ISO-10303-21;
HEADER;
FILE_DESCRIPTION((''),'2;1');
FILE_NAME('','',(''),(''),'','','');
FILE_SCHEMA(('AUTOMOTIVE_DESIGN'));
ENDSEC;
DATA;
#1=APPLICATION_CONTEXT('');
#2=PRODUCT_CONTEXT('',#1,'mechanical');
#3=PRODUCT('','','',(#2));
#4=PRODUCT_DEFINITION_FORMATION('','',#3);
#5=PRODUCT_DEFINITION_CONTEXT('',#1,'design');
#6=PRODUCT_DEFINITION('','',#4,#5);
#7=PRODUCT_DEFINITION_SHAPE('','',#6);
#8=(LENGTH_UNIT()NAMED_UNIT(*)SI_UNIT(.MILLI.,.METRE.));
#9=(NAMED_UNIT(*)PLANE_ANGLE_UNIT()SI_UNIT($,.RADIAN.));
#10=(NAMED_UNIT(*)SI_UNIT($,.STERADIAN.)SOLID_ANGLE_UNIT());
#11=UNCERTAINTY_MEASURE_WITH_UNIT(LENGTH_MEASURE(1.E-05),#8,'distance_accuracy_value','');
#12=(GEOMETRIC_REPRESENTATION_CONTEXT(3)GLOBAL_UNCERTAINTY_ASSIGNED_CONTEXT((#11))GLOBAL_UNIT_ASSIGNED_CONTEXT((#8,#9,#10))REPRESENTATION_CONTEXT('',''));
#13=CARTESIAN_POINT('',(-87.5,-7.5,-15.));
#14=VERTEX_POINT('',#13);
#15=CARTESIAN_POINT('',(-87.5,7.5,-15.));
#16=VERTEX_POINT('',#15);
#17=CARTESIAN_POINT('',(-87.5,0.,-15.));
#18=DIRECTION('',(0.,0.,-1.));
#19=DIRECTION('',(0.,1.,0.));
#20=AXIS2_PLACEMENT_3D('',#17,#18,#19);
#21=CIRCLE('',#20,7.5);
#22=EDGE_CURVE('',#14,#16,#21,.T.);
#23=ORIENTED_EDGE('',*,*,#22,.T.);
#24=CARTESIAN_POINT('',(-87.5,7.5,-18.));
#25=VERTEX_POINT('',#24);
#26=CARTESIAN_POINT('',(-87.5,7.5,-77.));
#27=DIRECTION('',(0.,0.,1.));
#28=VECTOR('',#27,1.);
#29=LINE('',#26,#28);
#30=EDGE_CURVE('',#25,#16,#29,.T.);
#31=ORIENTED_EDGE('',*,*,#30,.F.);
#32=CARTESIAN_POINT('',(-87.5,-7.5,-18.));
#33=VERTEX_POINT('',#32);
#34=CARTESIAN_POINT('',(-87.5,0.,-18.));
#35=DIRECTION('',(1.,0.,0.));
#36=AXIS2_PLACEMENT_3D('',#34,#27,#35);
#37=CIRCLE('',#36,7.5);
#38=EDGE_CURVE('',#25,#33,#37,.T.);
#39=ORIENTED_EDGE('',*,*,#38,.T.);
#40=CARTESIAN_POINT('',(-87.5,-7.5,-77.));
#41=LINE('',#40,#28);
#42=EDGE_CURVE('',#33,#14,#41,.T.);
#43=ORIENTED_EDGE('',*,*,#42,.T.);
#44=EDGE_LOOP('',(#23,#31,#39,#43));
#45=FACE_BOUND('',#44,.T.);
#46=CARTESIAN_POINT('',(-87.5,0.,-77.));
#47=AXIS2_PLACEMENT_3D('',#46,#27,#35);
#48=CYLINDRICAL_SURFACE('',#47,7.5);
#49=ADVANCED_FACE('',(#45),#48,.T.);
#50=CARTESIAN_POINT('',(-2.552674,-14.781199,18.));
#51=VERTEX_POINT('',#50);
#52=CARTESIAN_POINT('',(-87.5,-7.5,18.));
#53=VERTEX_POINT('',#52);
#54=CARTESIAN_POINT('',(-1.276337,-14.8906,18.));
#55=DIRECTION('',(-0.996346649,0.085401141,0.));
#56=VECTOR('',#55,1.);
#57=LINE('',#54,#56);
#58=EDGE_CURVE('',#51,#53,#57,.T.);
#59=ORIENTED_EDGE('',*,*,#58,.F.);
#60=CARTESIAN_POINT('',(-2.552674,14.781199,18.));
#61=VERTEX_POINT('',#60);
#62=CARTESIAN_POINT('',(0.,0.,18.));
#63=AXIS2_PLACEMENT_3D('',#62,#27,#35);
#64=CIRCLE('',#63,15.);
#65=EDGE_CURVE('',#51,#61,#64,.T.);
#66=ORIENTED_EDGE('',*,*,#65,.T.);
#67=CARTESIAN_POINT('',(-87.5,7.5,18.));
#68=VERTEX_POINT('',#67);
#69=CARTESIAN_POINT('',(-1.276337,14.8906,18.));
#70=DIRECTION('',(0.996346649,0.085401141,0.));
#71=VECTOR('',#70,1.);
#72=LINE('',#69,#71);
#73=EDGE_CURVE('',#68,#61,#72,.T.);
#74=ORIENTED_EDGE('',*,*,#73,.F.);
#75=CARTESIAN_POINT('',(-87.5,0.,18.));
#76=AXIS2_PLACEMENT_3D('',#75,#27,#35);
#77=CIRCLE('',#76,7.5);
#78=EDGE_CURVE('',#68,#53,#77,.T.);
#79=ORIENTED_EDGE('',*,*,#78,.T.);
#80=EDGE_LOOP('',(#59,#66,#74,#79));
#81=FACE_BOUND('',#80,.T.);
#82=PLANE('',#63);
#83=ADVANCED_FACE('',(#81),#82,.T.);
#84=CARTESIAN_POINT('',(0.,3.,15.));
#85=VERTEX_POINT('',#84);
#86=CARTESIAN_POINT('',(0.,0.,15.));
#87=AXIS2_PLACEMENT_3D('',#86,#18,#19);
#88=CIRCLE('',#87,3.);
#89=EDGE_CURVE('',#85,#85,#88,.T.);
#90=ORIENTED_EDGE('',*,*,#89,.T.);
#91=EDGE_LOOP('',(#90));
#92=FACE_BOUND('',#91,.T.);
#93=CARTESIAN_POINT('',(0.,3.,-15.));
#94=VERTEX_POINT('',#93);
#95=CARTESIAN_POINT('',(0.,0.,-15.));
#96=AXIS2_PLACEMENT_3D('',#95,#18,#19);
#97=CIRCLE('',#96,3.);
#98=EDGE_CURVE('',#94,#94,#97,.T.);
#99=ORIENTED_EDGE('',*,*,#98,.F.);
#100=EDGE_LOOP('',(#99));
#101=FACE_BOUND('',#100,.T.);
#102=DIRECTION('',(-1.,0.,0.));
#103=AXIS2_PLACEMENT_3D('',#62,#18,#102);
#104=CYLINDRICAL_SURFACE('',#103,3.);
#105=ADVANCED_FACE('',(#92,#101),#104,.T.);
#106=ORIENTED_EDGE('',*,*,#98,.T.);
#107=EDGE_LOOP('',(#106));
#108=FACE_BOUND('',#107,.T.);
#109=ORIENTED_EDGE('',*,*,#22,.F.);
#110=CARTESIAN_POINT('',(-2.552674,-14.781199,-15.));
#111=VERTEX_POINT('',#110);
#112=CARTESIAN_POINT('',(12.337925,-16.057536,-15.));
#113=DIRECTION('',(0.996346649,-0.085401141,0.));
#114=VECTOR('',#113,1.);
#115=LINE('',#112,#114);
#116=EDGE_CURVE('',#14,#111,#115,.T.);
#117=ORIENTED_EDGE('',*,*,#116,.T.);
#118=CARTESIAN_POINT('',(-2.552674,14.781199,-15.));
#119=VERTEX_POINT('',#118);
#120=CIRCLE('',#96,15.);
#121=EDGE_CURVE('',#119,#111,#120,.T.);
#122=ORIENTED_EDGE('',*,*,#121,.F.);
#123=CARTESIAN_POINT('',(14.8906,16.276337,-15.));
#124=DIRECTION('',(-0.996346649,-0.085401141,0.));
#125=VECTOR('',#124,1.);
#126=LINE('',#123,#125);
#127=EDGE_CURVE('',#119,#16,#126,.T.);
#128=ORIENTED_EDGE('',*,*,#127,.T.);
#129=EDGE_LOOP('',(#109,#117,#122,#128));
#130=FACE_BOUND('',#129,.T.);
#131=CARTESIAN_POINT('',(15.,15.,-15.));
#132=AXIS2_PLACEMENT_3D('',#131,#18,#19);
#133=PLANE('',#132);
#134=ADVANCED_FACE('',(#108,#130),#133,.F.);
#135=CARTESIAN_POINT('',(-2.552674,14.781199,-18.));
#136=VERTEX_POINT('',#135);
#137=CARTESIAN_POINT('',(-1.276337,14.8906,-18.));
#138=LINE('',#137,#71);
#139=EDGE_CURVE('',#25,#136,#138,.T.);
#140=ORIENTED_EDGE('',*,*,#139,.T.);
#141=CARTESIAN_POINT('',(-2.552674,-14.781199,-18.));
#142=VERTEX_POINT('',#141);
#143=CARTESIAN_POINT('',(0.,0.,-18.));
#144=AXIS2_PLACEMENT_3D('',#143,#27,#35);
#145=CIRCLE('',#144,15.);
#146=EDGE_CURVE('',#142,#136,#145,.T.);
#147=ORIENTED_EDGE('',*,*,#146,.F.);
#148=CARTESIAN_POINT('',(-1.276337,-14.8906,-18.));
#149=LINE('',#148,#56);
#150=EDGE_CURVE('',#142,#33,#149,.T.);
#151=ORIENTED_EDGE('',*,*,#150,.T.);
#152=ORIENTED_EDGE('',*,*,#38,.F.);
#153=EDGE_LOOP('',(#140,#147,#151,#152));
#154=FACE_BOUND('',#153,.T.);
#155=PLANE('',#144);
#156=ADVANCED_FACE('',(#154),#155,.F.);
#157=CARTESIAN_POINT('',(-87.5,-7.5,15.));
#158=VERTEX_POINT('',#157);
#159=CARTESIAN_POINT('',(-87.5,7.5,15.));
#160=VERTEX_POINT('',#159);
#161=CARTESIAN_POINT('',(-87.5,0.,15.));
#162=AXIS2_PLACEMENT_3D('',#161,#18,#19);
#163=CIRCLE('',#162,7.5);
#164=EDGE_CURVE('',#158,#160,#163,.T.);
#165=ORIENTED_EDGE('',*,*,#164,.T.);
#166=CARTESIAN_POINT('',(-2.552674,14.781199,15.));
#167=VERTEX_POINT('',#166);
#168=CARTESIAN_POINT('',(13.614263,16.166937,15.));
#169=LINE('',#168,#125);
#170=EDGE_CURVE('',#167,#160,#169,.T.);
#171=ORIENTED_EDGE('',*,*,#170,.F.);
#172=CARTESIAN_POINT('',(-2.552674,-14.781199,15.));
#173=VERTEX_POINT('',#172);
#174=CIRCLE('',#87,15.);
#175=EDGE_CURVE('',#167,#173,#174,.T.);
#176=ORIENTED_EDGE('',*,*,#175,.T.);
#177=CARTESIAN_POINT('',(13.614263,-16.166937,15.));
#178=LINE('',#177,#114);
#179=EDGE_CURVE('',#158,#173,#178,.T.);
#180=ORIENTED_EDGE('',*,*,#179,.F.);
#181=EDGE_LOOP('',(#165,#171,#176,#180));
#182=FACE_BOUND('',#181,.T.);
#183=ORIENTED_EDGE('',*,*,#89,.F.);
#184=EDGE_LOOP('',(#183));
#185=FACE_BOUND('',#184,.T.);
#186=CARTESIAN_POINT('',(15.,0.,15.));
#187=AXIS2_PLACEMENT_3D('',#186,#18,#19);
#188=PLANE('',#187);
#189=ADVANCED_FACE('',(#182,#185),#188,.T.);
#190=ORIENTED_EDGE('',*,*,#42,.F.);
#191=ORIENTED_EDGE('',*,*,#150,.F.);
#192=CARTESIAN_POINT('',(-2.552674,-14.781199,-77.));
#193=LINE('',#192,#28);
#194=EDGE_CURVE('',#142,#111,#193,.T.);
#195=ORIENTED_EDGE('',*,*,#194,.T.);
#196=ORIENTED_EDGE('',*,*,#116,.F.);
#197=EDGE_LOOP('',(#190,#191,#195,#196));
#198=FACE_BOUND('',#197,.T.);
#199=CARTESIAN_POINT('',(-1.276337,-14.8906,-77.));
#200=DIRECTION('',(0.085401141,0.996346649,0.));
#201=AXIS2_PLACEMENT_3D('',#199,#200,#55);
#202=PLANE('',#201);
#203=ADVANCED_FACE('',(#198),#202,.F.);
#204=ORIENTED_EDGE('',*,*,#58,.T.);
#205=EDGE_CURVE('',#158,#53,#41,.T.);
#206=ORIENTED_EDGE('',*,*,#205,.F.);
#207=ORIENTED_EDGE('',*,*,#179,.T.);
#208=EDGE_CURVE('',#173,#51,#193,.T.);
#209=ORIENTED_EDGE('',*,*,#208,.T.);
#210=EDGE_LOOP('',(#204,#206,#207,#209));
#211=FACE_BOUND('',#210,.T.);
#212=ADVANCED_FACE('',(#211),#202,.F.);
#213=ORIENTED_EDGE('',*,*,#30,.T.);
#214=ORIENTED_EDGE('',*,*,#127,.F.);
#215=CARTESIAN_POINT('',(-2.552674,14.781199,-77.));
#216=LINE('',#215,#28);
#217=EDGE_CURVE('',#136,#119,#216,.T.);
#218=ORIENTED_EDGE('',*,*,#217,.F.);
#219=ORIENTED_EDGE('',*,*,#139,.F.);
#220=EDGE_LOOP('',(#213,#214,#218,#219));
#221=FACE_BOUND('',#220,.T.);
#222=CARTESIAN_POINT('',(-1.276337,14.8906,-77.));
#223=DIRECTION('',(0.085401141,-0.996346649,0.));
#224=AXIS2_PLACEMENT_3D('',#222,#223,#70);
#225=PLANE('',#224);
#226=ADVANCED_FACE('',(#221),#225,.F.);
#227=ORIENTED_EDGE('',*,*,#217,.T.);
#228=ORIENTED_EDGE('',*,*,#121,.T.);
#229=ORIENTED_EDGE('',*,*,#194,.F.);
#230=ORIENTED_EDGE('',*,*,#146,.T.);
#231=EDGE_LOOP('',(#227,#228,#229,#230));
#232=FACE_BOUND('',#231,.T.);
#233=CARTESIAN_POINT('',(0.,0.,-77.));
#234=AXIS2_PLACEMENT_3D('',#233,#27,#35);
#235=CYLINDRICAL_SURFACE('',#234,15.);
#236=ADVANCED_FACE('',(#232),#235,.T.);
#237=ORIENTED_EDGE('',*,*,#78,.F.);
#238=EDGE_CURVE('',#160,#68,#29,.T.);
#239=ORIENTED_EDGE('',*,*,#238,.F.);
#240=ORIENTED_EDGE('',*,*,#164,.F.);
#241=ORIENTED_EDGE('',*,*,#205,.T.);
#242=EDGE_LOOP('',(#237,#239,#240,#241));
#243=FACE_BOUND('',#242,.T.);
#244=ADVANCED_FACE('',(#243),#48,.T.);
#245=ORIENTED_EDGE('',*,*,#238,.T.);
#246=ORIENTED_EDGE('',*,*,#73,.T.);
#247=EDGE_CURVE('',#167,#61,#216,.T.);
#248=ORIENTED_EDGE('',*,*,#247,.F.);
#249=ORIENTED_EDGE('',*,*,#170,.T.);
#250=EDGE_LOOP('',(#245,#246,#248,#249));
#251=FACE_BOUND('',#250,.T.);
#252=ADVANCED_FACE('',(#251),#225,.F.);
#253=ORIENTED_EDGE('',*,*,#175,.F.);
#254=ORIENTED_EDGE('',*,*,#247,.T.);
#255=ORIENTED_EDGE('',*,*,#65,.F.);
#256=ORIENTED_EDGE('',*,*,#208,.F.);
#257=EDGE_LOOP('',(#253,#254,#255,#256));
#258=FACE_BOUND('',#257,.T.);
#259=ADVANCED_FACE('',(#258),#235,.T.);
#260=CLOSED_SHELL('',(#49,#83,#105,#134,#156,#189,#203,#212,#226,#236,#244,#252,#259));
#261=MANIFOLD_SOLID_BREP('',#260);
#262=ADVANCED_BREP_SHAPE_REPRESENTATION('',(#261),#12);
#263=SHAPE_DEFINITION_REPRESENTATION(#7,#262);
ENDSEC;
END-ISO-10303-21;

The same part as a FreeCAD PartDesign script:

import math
import FreeCAD as App
import Part
import Sketcher
from FreeCAD import Vector
Q = App.Units.Quantity

doc = App.newDocument("Part")
body = doc.addObject("PartDesign::Body", "Body")

# Sketch on XY plane
sketch1 = body.newObject("Sketcher::SketchObject", "Sketch")
sketch1.AttachmentSupport = (doc.getObject("XY_Plane"), [""])
sketch1.MapMode = "FlatFace"
sketch1.addGeometry(Part.Circle(Vector(0, 0, 0), Vector(0, 0, 1), 3), False)
sketch1.addConstraint([
    Sketcher.Constraint("Coincident", 0, 3, -1, 1),
    Sketcher.Constraint("Diameter", 0, Q("6 mm")),
])
pad1 = body.newObject("PartDesign::Pad", "Pad")
pad1.Profile = sketch1
pad1.Length = 18

# Sketch on XY plane
sketch2 = body.newObject("Sketcher::SketchObject", "Sketch001")
sketch2.AttachmentSupport = (doc.getObject("XY_Plane"), [""])
sketch2.MapMode = "FlatFace"
sketch2.addGeometry(Part.Circle(Vector(0, 0, 0), Vector(0, 0, 1), 3), False)
sketch2.addConstraint([
    Sketcher.Constraint("Coincident", 0, 3, -1, 1),
    Sketcher.Constraint("Diameter", 0, Q("6 mm")),
])
pad2 = body.newObject("PartDesign::Pad", "Pad001")
pad2.Profile = sketch2
pad2.Length = 18
pad2.Reversed = True

# Sketch on YZ plane
sketch3 = body.newObject("Sketcher::SketchObject", "Sketch002")
sketch3.AttachmentSupport = (doc.getObject("YZ_Plane"), [""])
sketch3.MapMode = "FlatFace"
sketch3.addGeometry([
    Part.LineSegment(Vector(15, 18, 0), Vector(-15, 18, 0)),  # 0
    Part.LineSegment(Vector(-15, 18, 0), Vector(-15, 15, 0)),  # 1
    Part.LineSegment(Vector(-15, 15, 0), Vector(15, 15, 0)),  # 2
    Part.LineSegment(Vector(15, 15, 0), Vector(15, 18, 0)),  # 3
    Part.LineSegment(Vector(15, -18, 0), Vector(15, -15, 0)),  # 4
    Part.LineSegment(Vector(15, -15, 0), Vector(-15, -15, 0)),  # 5
    Part.LineSegment(Vector(-15, -15, 0), Vector(-15, -18, 0)),  # 6
    Part.LineSegment(Vector(-15, -18, 0), Vector(15, -18, 0)),  # 7
], False)
sketch3.addConstraint([
    Sketcher.Constraint("Coincident", 0, 2, 1, 1),
    Sketcher.Constraint("Coincident", 1, 2, 2, 1),
    Sketcher.Constraint("Coincident", 2, 2, 3, 1),
    Sketcher.Constraint("Coincident", 3, 2, 0, 1),
    Sketcher.Constraint("Coincident", 4, 2, 5, 1),
    Sketcher.Constraint("Coincident", 5, 2, 6, 1),
    Sketcher.Constraint("Coincident", 6, 2, 7, 1),
    Sketcher.Constraint("Coincident", 7, 2, 4, 1),
    Sketcher.Constraint("Horizontal", 0),
    Sketcher.Constraint("Vertical", 1),
    Sketcher.Constraint("Horizontal", 2),
    Sketcher.Constraint("Vertical", 3),
    Sketcher.Constraint("Vertical", 4),
    Sketcher.Constraint("Horizontal", 5),
    Sketcher.Constraint("Vertical", 6),
    Sketcher.Constraint("Horizontal", 7),
    Sketcher.Constraint("Symmetric", 1, 2, 4, 2, -1, 1),
    Sketcher.Constraint("Symmetric", 3, 2, 6, 2, -1, 1),
    Sketcher.Constraint("Vertical", 3, 2, 4, 2),
    Sketcher.Constraint("DistanceX", 0, 2, 0, 1, Q("30 mm")),
    Sketcher.Constraint("DistanceY", 1, 2, 1, 1, Q("3 mm")),
    Sketcher.Constraint("DistanceY", -1, 1, 0, 2, Q("18 mm")),
])
pad3 = body.newObject("PartDesign::Pad", "Pad002")
pad3.Profile = sketch3
pad3.Length = 15

# Sketch on YZ plane
sketch4 = body.newObject("Sketcher::SketchObject", "Sketch003")
sketch4.AttachmentSupport = (doc.getObject("YZ_Plane"), [""])
sketch4.MapMode = "FlatFace"
sketch4.addGeometry([
    Part.LineSegment(Vector(15, -15, 0), Vector(-15, -15, 0)),  # 0
    Part.LineSegment(Vector(-15, -15, 0), Vector(-15, -18, 0)),  # 1
    Part.LineSegment(Vector(-15, -18, 0), Vector(15, -18, 0)),  # 2
    Part.LineSegment(Vector(15, -18, 0), Vector(15, -15, 0)),  # 3
    Part.LineSegment(Vector(15, 18, 0), Vector(-15, 18, 0)),  # 4
    Part.LineSegment(Vector(-15, 18, 0), Vector(-15, 15, 0)),  # 5
    Part.LineSegment(Vector(-15, 15, 0), Vector(15, 15, 0)),  # 6
    Part.LineSegment(Vector(15, 15, 0), Vector(15, 18, 0)),  # 7
], False)
sketch4.addConstraint([
    Sketcher.Constraint("Coincident", 0, 2, 1, 1),
    Sketcher.Constraint("Coincident", 1, 2, 2, 1),
    Sketcher.Constraint("Coincident", 2, 2, 3, 1),
    Sketcher.Constraint("Coincident", 3, 2, 0, 1),
    Sketcher.Constraint("Coincident", 4, 2, 5, 1),
    Sketcher.Constraint("Coincident", 5, 2, 6, 1),
    Sketcher.Constraint("Coincident", 6, 2, 7, 1),
    Sketcher.Constraint("Coincident", 7, 2, 4, 1),
    Sketcher.Constraint("Horizontal", 0),
    Sketcher.Constraint("Vertical", 1),
    Sketcher.Constraint("Horizontal", 2),
    Sketcher.Constraint("Vertical", 3),
    Sketcher.Constraint("Horizontal", 4),
    Sketcher.Constraint("Vertical", 5),
    Sketcher.Constraint("Horizontal", 6),
    Sketcher.Constraint("Vertical", 7),
    Sketcher.Constraint("Symmetric", 2, 2, 4, 2, -1, 1),
    Sketcher.Constraint("Symmetric", 0, 2, 6, 2, -1, 1),
    Sketcher.Constraint("Vertical", 1, 2, 4, 2),
    Sketcher.Constraint("DistanceX", 0, 2, 0, 1, Q("30 mm")),
    Sketcher.Constraint("DistanceY", 1, 2, 1, 1, Q("3 mm")),
    Sketcher.Constraint("DistanceY", 0, 2, -1, 1, Q("15 mm")),
])
pad4 = body.newObject("PartDesign::Pad", "Pad003")
pad4.Profile = sketch4
pad4.Length = 95
pad4.Reversed = True

# Sketch on XY plane
sketch5 = body.newObject("Sketcher::SketchObject", "Sketch004")
sketch5.AttachmentSupport = (doc.getObject("XY_Plane"), [""])
sketch5.MapMode = "FlatFace"
sketch5.AttachmentOffset = App.Placement(Vector(0, 0, 18), App.Rotation())
sketch5.addGeometry([
    Part.ArcOfCircle(Part.Circle(Vector(-87.5, 0, 0), Vector(0, 0, 1), 7.5), math.radians(90), math.radians(180)),  # 0
    Part.LineSegment(Vector(-87.5, 7.5, 0), Vector(-2.552674, 14.781199, 0)),  # 1
    Part.ArcOfCircle(Part.Circle(Vector(0, 0, 0), Vector(0, 0, 1), 15), math.radians(90), math.radians(99.798185)),  # 2
    Part.LineSegment(Vector(0, 15, 0), Vector(-95, 15, 0)),  # 3
    Part.LineSegment(Vector(-95, 15, 0), Vector(-95, 0, 0)),  # 4
    Part.ArcOfCircle(Part.Circle(Vector(-87.5, 0, 0), Vector(0, 0, 1), 7.5), math.radians(180), math.radians(270)),  # 5
    Part.LineSegment(Vector(-95, 0, 0), Vector(-95, -15, 0)),  # 6
    Part.LineSegment(Vector(-95, -15, 0), Vector(0, -15, 0)),  # 7
    Part.ArcOfCircle(Part.Circle(Vector(0, 0, 0), Vector(0, 0, 1), 15), math.radians(-99.798185), math.radians(-90)),  # 8
    Part.LineSegment(Vector(-2.552674, -14.781199, 0), Vector(-87.5, -7.5, 0)),  # 9
    Part.LineSegment(Vector(15, -15, 0), Vector(15, 0, 0)),  # 10
    Part.ArcOfCircle(Part.Circle(Vector(0, 0, 0), Vector(0, 0, 1), 15), math.radians(-90), math.radians(0)),  # 11
    Part.LineSegment(Vector(0, -15, 0), Vector(15, -15, 0)),  # 12
    Part.LineSegment(Vector(15, 15, 0), Vector(0, 15, 0)),  # 13
    Part.ArcOfCircle(Part.Circle(Vector(0, 0, 0), Vector(0, 0, 1), 15), math.radians(0), math.radians(90)),  # 14
    Part.LineSegment(Vector(15, 0, 0), Vector(15, 15, 0)),  # 15
], False)
sketch5.addConstraint([
    Sketcher.Constraint("Coincident", 0, 1, 1, 1),
    Sketcher.Constraint("Coincident", 1, 2, 2, 2),
    Sketcher.Constraint("Tangent", 2, 1, 3, 1),
    Sketcher.Constraint("Coincident", 3, 2, 4, 1),
    Sketcher.Constraint("Tangent", 4, 2, 0, 2),
    Sketcher.Constraint("Tangent", 5, 1, 6, 1),
    Sketcher.Constraint("Coincident", 6, 2, 7, 1),
    Sketcher.Constraint("Tangent", 7, 2, 8, 2),
    Sketcher.Constraint("Coincident", 8, 1, 9, 1),
    Sketcher.Constraint("Coincident", 9, 2, 5, 2),
    Sketcher.Constraint("Tangent", 10, 2, 11, 2),
    Sketcher.Constraint("Tangent", 11, 1, 12, 1),
    Sketcher.Constraint("Coincident", 12, 2, 10, 1),
    Sketcher.Constraint("Tangent", 13, 2, 14, 2),
    Sketcher.Constraint("Tangent", 14, 1, 15, 1),
    Sketcher.Constraint("Coincident", 15, 2, 13, 1),
    Sketcher.Constraint("Horizontal", 3),
    Sketcher.Constraint("Vertical", 4),
    Sketcher.Constraint("Vertical", 6),
    Sketcher.Constraint("Horizontal", 7),
    Sketcher.Constraint("Vertical", 10),
    Sketcher.Constraint("Horizontal", 12),
    Sketcher.Constraint("Horizontal", 13),
    Sketcher.Constraint("Vertical", 15),
    Sketcher.Constraint("Coincident", 2, 3, -1, 1),
    Sketcher.Constraint("Coincident", 8, 3, -1, 1),
    Sketcher.Constraint("Coincident", 11, 3, -1, 1),
    Sketcher.Constraint("Coincident", 14, 3, -1, 1),
    Sketcher.Constraint("Coincident", 5, 3, 0, 3),
    Sketcher.Constraint("Equal", 0, 5),
    Sketcher.Constraint("Equal", 2, 8),
    Sketcher.Constraint("Equal", 8, 11),
    Sketcher.Constraint("Equal", 11, 14),
    Sketcher.Constraint("Symmetric", 0, 1, 9, 2, -1),
    Sketcher.Constraint("Vertical", 5, 3, 0, 1),
    Sketcher.Constraint("Vertical", 1, 2, 8, 1),
    Sketcher.Constraint("Radius", 2, Q("15 mm")),
    Sketcher.Constraint("Radius", 0, Q("7.5 mm")),
    Sketcher.Constraint("DistanceX", 3, 2, 3, 1, Q("95 mm")),
    Sketcher.Constraint("DistanceY", -1, 1, 1, 2, Q("14.781199 mm")),
])
pocket1 = body.newObject("PartDesign::Pocket", "Pocket")
pocket1.Profile = sketch5
pocket1.Length = 95

doc.recompute()
